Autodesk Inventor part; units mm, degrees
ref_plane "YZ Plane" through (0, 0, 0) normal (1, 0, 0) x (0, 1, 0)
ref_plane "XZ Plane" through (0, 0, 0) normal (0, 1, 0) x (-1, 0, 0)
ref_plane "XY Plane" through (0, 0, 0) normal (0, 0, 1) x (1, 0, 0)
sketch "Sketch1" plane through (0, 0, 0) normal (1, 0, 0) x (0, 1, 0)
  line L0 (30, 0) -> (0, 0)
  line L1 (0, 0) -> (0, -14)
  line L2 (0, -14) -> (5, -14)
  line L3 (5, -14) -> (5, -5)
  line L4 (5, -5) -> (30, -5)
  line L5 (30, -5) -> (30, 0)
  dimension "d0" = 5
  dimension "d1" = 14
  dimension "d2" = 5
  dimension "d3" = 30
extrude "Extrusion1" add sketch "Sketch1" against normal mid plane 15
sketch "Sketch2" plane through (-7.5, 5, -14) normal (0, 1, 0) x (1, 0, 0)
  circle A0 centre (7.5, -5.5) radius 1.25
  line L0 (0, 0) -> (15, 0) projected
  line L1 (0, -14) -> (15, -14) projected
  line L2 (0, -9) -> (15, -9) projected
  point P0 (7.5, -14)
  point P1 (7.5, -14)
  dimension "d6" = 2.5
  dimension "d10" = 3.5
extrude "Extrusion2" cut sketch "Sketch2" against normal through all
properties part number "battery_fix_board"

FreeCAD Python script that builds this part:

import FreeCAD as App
import Part
import Sketcher
from FreeCAD import Vector


def add_polygon(sketch, points):
    """Adds a closed chain of lines whose ends are joined by coincident constraints."""
    first, n = sketch.GeometryCount, len(points)
    for a, b in zip(points, points[1:] + points[:1]):
        sketch.addGeometry(Part.LineSegment(App.Vector(*a, 0), App.Vector(*b, 0)), False)
    for i in range(n):
        sketch.addConstraint(Sketcher.Constraint("Coincident", first + i, 2, first + (i + 1) % n, 1))

doc = App.newDocument("Part")
body = doc.addObject("PartDesign::Body", "Body")

sketch1 = body.newObject("Sketcher::SketchObject", "Sketch")
sketch1.AttachmentSupport = (doc.getObject("YZ_Plane"), [""])
sketch1.MapMode = "FlatFace"
add_polygon(sketch1, [(30, -5), (30, 0), (0, 0), (0, -14), (5, -14), (5, -5)])
sketch1.addConstraint([
    Sketcher.Constraint("Vertical", 0),
    Sketcher.Constraint("Horizontal", 1),
    Sketcher.Constraint("Vertical", 2),
    Sketcher.Constraint("Horizontal", 3),
    Sketcher.Constraint("Vertical", 4),
    Sketcher.Constraint("Horizontal", 5),
    Sketcher.Constraint("Coincident", 1, 2, -1, 1),
    Sketcher.Constraint("Equal", 3, 0),
    Sketcher.Constraint("DistanceX", 1, 2, 1, 1, 30.0),
    Sketcher.Constraint("DistanceX", 3, 1, 3, 2, 5.0),
    Sketcher.Constraint("DistanceY", 2, 2, 2, 1, 14.0),
])
pad1 = body.newObject("PartDesign::Pad", "Pad")
pad1.Profile = sketch1
pad1.Length = 15
pad1.Midplane = True

sketch2 = body.newObject("Sketcher::SketchObject", "Sketch001")
sketch2.AttachmentSupport = (doc.getObject("XZ_Plane"), [""])
sketch2.MapMode = "FlatFace"
sketch2.AttachmentOffset = App.Placement(Vector(0, 0, -5), App.Rotation())
sketch2.addGeometry(Part.Circle(Vector(0, -8.5, 0), Vector(0, 0, 1), 1.2), False)
sketch2.addConstraint([
    Sketcher.Constraint("PointOnObject", 0, 3, -2),
    Sketcher.Constraint("Diameter", 0, 2.5),
    Sketcher.Constraint("DistanceY", 0, 3, -1, 1, 8.5),
])
pocket1 = body.newObject("PartDesign::Pocket", "Pocket")
pocket1.Profile = sketch2
pocket1.Type = "ThroughAll"
pocket1.Reversed = True

doc.recompute()
